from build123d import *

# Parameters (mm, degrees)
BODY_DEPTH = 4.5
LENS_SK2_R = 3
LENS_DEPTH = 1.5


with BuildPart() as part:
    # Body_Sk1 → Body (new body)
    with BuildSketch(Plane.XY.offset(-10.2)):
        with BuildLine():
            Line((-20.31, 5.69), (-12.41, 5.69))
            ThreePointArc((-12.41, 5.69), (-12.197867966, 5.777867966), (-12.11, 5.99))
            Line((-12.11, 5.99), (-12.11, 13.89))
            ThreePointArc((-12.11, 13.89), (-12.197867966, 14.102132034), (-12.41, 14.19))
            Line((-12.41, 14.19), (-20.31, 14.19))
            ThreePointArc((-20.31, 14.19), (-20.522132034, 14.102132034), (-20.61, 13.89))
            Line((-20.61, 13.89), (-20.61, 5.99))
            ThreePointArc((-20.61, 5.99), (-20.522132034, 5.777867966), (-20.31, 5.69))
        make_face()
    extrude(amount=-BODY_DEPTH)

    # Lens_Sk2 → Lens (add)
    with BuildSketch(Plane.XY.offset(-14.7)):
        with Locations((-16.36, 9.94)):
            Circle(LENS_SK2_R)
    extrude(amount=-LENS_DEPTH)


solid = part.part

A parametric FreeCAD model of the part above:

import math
import FreeCAD as App
import Part
import Sketcher
Q = App.Units.Quantity

doc = App.newDocument("Part")
params = doc.addObject("Spreadsheet::Sheet", "Params")
for row, (alias, value) in enumerate([
    ("sketch1_radius", "0.3 mm"),
    ("sketch1_width", "7.9 mm"),
    ("pad1_length", "4.5 mm"),
    ("sketch2_diameter", "6 mm"),
    ("pad2_length", "1.5 mm"),
], start=1):
    params.set(f"A{row}", alias)
    params.set(f"B{row}", "=" + value)
    params.setAlias(f"B{row}", alias)

body = doc.addObject("PartDesign::Body", "Body")

# Sketch on XY plane
sketch1 = body.newObject("Sketcher::SketchObject", "Sketch")
sketch1.AttachmentSupport = (doc.getObject("XY_Plane"), [""])
sketch1.MapMode = "FlatFace"
sketch1.AttachmentOffset = App.Placement(App.Vector(0, 0, -10.2), App.Rotation())
sketch1.addGeometry([
    Part.LineSegment(App.Vector(-20.31, 5.69, 0), App.Vector(-12.41, 5.69, 0)),  # 0
    Part.ArcOfCircle(Part.Circle(App.Vector(-12.41, 5.99, 0), App.Vector(0, 0, 1), 0.3), math.radians(-90), math.radians(0)),  # 1
    Part.LineSegment(App.Vector(-12.11, 5.99, 0), App.Vector(-12.11, 13.89, 0)),  # 2
    Part.ArcOfCircle(Part.Circle(App.Vector(-12.41, 13.89, 0), App.Vector(0, 0, 1), 0.3), math.radians(0), math.radians(90)),  # 3
    Part.LineSegment(App.Vector(-12.41, 14.19, 0), App.Vector(-20.31, 14.19, 0)),  # 4
    Part.ArcOfCircle(Part.Circle(App.Vector(-20.31, 13.89, 0), App.Vector(0, 0, 1), 0.3), math.radians(90), math.radians(180)),  # 5
    Part.LineSegment(App.Vector(-20.61, 13.89, 0), App.Vector(-20.61, 5.99, 0)),  # 6
    Part.ArcOfCircle(Part.Circle(App.Vector(-20.31, 5.99, 0), App.Vector(0, 0, 1), 0.3), math.radians(-180), math.radians(-90)),  # 7
], False)
sketch1.addConstraint([
    Sketcher.Constraint("Tangent", 0, 2, 1, 1),
    Sketcher.Constraint("Tangent", 1, 2, 2, 1),
    Sketcher.Constraint("Tangent", 2, 2, 3, 1),
    Sketcher.Constraint("Tangent", 3, 2, 4, 1),
    Sketcher.Constraint("Tangent", 4, 2, 5, 1),
    Sketcher.Constraint("Tangent", 5, 2, 6, 1),
    Sketcher.Constraint("Tangent", 6, 2, 7, 1),
    Sketcher.Constraint("Tangent", 7, 2, 0, 1),
    Sketcher.Constraint("Horizontal", 0),
    Sketcher.Constraint("Vertical", 2),
    Sketcher.Constraint("Horizontal", 4),
    Sketcher.Constraint("Vertical", 6),
    Sketcher.Constraint("Equal", 1, 3),
    Sketcher.Constraint("Equal", 3, 5),
    Sketcher.Constraint("Equal", 5, 7),
    Sketcher.Constraint("Equal", 4, 2),
    Sketcher.Constraint("Radius", 1, Q("0.3 mm")),
    Sketcher.Constraint("DistanceX", 0, 1, 0, 2, Q("7.9 mm")),
    Sketcher.Constraint("DistanceX", 1, 3, -1, 1, Q("12.41 mm")),
    Sketcher.Constraint("DistanceY", -1, 1, 1, 3, Q("5.99 mm")),
])
sketch1.setExpression("Constraints[16]", "Params.sketch1_radius")
sketch1.setExpression("Constraints[17]", "Params.sketch1_width")
pad1 = body.newObject("PartDesign::Pad", "Pad")
pad1.Profile = sketch1
pad1.setExpression("Length", "Params.pad1_length")
pad1.Reversed = True

# Sketch on XY plane
sketch2 = body.newObject("Sketcher::SketchObject", "Sketch001")
sketch2.AttachmentSupport = (doc.getObject("XY_Plane"), [""])
sketch2.MapMode = "FlatFace"
sketch2.AttachmentOffset = App.Placement(App.Vector(0, 0, -14.7), App.Rotation())
sketch2.addGeometry(Part.Circle(App.Vector(-16.36, 9.94, 0), App.Vector(0, 0, 1), 3), False)
sketch2.addConstraint([
    Sketcher.Constraint("Diameter", 0, Q("6 mm")),
    Sketcher.Constraint("DistanceX", 0, 3, -1, 1, Q("16.36 mm")),
    Sketcher.Constraint("DistanceY", -1, 1, 0, 3, Q("9.94 mm")),
])
sketch2.setExpression("Constraints[0]", "Params.sketch2_diameter")
pad2 = body.newObject("PartDesign::Pad", "Pad001")
pad2.Profile = sketch2
pad2.setExpression("Length", "Params.pad2_length")
pad2.Reversed = True

doc.recompute()
